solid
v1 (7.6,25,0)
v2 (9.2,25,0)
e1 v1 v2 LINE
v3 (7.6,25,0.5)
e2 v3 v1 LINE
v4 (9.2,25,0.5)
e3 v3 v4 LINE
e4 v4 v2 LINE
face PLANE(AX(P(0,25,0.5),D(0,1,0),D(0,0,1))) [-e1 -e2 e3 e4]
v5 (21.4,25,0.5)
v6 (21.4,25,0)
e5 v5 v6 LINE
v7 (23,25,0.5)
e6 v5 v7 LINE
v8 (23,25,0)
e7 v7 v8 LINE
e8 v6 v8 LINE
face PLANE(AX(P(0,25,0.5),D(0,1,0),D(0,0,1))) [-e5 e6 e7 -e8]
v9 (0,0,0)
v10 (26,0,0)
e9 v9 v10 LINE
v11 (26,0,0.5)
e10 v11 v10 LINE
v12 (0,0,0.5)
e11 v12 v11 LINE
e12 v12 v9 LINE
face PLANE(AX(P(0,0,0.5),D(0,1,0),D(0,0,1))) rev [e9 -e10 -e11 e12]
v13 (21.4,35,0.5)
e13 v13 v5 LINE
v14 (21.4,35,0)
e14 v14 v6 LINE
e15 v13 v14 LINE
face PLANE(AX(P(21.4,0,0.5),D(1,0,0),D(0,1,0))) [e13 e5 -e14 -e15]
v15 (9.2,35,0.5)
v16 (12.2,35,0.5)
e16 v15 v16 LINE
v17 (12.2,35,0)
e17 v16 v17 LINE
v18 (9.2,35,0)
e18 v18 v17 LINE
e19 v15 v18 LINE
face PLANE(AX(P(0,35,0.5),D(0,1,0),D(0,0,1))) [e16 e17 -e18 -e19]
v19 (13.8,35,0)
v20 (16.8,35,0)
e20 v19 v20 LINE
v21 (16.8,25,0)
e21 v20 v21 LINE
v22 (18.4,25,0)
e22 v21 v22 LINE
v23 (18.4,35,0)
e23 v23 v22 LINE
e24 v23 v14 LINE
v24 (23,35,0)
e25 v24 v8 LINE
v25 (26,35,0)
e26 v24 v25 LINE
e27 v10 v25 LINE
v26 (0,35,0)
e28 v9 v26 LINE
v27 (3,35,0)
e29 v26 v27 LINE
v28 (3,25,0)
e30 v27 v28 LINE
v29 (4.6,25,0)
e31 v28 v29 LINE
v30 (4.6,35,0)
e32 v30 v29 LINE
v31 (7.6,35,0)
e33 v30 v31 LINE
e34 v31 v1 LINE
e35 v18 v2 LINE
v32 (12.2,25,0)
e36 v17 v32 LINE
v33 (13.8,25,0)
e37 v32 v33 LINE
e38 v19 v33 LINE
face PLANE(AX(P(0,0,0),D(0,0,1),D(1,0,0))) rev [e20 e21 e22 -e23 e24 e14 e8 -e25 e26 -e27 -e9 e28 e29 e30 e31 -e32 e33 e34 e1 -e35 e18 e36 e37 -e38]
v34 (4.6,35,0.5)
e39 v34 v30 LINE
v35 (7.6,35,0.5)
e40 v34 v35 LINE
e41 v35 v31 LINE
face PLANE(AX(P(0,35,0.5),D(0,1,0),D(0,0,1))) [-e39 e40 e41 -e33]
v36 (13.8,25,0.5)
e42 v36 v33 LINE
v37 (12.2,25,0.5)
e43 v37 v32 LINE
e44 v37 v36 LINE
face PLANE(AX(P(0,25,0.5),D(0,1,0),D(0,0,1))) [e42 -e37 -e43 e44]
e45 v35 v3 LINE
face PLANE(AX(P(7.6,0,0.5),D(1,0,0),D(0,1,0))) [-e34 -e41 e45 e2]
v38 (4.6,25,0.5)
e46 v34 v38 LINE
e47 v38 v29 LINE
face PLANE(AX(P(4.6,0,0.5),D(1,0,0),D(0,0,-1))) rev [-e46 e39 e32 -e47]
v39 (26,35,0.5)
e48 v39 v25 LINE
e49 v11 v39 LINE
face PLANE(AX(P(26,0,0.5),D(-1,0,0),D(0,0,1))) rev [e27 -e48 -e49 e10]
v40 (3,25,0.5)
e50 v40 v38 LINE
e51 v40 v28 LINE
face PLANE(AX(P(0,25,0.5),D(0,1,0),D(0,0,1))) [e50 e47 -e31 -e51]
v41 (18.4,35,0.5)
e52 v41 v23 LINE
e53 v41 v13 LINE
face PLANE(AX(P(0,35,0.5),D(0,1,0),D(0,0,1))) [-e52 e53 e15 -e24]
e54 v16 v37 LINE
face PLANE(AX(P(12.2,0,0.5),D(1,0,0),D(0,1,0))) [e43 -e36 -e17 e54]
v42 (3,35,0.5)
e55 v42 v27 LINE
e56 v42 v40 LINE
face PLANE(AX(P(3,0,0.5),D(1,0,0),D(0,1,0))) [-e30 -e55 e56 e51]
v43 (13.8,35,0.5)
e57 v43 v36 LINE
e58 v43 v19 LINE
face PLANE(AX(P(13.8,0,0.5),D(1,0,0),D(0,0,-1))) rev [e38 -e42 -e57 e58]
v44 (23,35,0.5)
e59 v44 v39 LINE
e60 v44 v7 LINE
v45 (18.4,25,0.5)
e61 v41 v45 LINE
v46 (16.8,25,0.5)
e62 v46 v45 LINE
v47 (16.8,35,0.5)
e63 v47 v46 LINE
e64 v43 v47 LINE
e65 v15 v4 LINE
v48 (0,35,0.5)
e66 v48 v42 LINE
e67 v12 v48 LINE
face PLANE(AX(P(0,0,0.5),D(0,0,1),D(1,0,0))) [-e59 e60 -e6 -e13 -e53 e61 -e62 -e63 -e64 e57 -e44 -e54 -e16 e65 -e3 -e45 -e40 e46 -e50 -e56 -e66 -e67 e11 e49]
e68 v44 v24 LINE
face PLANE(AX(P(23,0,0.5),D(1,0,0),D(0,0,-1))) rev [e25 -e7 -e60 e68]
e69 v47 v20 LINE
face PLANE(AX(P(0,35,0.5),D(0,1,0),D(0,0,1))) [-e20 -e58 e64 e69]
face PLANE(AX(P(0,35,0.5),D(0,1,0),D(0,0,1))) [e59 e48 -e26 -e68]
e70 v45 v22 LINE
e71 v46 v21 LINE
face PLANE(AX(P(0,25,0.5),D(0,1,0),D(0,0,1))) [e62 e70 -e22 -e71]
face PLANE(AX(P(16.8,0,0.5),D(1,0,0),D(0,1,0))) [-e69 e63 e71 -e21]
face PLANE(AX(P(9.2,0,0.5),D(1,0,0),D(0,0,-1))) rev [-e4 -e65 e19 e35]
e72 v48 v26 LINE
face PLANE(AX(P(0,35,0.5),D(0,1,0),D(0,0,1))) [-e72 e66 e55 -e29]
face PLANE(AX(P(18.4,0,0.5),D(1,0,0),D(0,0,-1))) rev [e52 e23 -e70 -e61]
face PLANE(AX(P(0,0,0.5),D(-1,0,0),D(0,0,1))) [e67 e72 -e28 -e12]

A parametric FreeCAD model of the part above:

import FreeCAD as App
import Part
import Sketcher

doc = App.newDocument("Part")
body = doc.addObject("PartDesign::Body", "Body")

# Sketch on XY plane
sketch1 = body.newObject("Sketcher::SketchObject", "Sketch")
sketch1.AttachmentSupport = (doc.getObject("XY_Plane"), [""])
sketch1.MapMode = "FlatFace"
sketch1.addGeometry([
    Part.LineSegment(App.Vector(0, 35, 0), App.Vector(0, 0, 0)),  # 0
    Part.LineSegment(App.Vector(0, 0, 0), App.Vector(26, 0, 0)),  # 1
    Part.LineSegment(App.Vector(26, 0, 0), App.Vector(26, 35, 0)),  # 2
    Part.LineSegment(App.Vector(26, 35, 0), App.Vector(23, 35, 0)),  # 3
    Part.LineSegment(App.Vector(23, 35, 0), App.Vector(23, 25, 0)),  # 4
    Part.LineSegment(App.Vector(23, 25, 0), App.Vector(21.4, 25, 0)),  # 5
    Part.LineSegment(App.Vector(21.4, 25, 0), App.Vector(21.4, 35, 0)),  # 6
    Part.LineSegment(App.Vector(21.4, 35, 0), App.Vector(18.4, 35, 0)),  # 7
    Part.LineSegment(App.Vector(18.4, 35, 0), App.Vector(18.4, 25, 0)),  # 8
    Part.LineSegment(App.Vector(18.4, 25, 0), App.Vector(16.8, 25, 0)),  # 9
    Part.LineSegment(App.Vector(16.8, 25, 0), App.Vector(16.8, 35, 0)),  # 10
    Part.LineSegment(App.Vector(16.8, 35, 0), App.Vector(13.8, 35, 0)),  # 11
    Part.LineSegment(App.Vector(13.8, 35, 0), App.Vector(13.8, 25, 0)),  # 12
    Part.LineSegment(App.Vector(13.8, 25, 0), App.Vector(12.2, 25, 0)),  # 13
    Part.LineSegment(App.Vector(12.2, 25, 0), App.Vector(12.2, 35, 0)),  # 14
    Part.LineSegment(App.Vector(12.2, 35, 0), App.Vector(9.2, 35, 0)),  # 15
    Part.LineSegment(App.Vector(9.2, 35, 0), App.Vector(9.2, 25, 0)),  # 16
    Part.LineSegment(App.Vector(9.2, 25, 0), App.Vector(7.6, 25, 0)),  # 17
    Part.LineSegment(App.Vector(7.6, 25, 0), App.Vector(7.6, 35, 0)),  # 18
    Part.LineSegment(App.Vector(7.6, 35, 0), App.Vector(4.6, 35, 0)),  # 19
    Part.LineSegment(App.Vector(4.6, 35, 0), App.Vector(4.6, 25, 0)),  # 20
    Part.LineSegment(App.Vector(4.6, 25, 0), App.Vector(3, 25, 0)),  # 21
    Part.LineSegment(App.Vector(3, 25, 0), App.Vector(3, 35, 0)),  # 22
    Part.LineSegment(App.Vector(3, 35, 0), App.Vector(0, 35, 0)),  # 23
], False)
sketch1.addConstraint([
    Sketcher.Constraint("Coincident", 0, 2, 1, 1),
    Sketcher.Constraint("Coincident", 1, 2, 2, 1),
    Sketcher.Constraint("Coincident", 2, 2, 3, 1),
    Sketcher.Constraint("Coincident", 3, 2, 4, 1),
    Sketcher.Constraint("Coincident", 4, 2, 5, 1),
    Sketcher.Constraint("Coincident", 5, 2, 6, 1),
    Sketcher.Constraint("Coincident", 6, 2, 7, 1),
    Sketcher.Constraint("Coincident", 7, 2, 8, 1),
    Sketcher.Constraint("Coincident", 8, 2, 9, 1),
    Sketcher.Constraint("Coincident", 9, 2, 10, 1),
    Sketcher.Constraint("Coincident", 10, 2, 11, 1),
    Sketcher.Constraint("Coincident", 11, 2, 12, 1),
    Sketcher.Constraint("Coincident", 12, 2, 13, 1),
    Sketcher.Constraint("Coincident", 13, 2, 14, 1),
    Sketcher.Constraint("Coincident", 14, 2, 15, 1),
    Sketcher.Constraint("Coincident", 15, 2, 16, 1),
    Sketcher.Constraint("Coincident", 16, 2, 17, 1),
    Sketcher.Constraint("Coincident", 17, 2, 18, 1),
    Sketcher.Constraint("Coincident", 18, 2, 19, 1),
    Sketcher.Constraint("Coincident", 19, 2, 20, 1),
    Sketcher.Constraint("Coincident", 20, 2, 21, 1),
    Sketcher.Constraint("Coincident", 21, 2, 22, 1),
    Sketcher.Constraint("Coincident", 22, 2, 23, 1),
    Sketcher.Constraint("Coincident", 23, 2, 0, 1),
    Sketcher.Constraint("Vertical", 0),
    Sketcher.Constraint("Horizontal", 1),
    Sketcher.Constraint("Vertical", 2),
    Sketcher.Constraint("Horizontal", 3),
    Sketcher.Constraint("Vertical", 4),
    Sketcher.Constraint("Horizontal", 5),
    Sketcher.Constraint("Vertical", 6),
    Sketcher.Constraint("Horizontal", 7),
    Sketcher.Constraint("Vertical", 8),
    Sketcher.Constraint("Horizontal", 9),
    Sketcher.Constraint("Vertical", 10),
    Sketcher.Constraint("Horizontal", 11),
    Sketcher.Constraint("Vertical", 12),
    Sketcher.Constraint("Horizontal", 13),
    Sketcher.Constraint("Vertical", 14),
    Sketcher.Constraint("Horizontal", 15),
    Sketcher.Constraint("Vertical", 16),
    Sketcher.Constraint("Horizontal", 17),
    Sketcher.Constraint("Vertical", 18),
    Sketcher.Constraint("Horizontal", 19),
    Sketcher.Constraint("Vertical", 20),
    Sketcher.Constraint("Horizontal", 21),
    Sketcher.Constraint("Vertical", 22),
    Sketcher.Constraint("Horizontal", 23),
    Sketcher.Constraint("Coincident", 0, 2, -1, 1),
    Sketcher.Constraint("Horizontal", 3, 2, 6, 2),
    Sketcher.Constraint("Horizontal", 5, 2, 8, 2),
    Sketcher.Constraint("Horizontal", 7, 2, 10, 2),
    Sketcher.Constraint("Horizontal", 9, 2, 12, 2),
    Sketcher.Constraint("Horizontal", 11, 2, 14, 2),
    Sketcher.Constraint("Horizontal", 13, 2, 16, 2),
    Sketcher.Constraint("Horizontal", 15, 2, 18, 2),
    Sketcher.Constraint("Horizontal", 17, 2, 20, 2),
    Sketcher.Constraint("Horizontal", 19, 2, 22, 2),
    Sketcher.Constraint("Equal", 3, 7),
    Sketcher.Constraint("Equal", 5, 9),
    Sketcher.Constraint("Equal", 7, 11),
    Sketcher.Constraint("Equal", 9, 13),
    Sketcher.Constraint("Equal", 11, 15),
    Sketcher.Constraint("Equal", 13, 17),
    Sketcher.Constraint("Equal", 15, 19),
    Sketcher.Constraint("Equal", 17, 21),
    Sketcher.Constraint("Equal", 19, 23),
    Sketcher.Constraint("DistanceX", 1, 1, 1, 2, 26.0),
    Sketcher.Constraint("DistanceX", 3, 2, 3, 1, 3.0),
    Sketcher.Constraint("DistanceY", 0, 2, 0, 1, 35.0),
    Sketcher.Constraint("DistanceY", 4, 2, 4, 1, 10.0),
])
pad1 = body.newObject("PartDesign::Pad", "Pad")
pad1.Profile = sketch1
pad1.Length = 0.5

doc.recompute()
